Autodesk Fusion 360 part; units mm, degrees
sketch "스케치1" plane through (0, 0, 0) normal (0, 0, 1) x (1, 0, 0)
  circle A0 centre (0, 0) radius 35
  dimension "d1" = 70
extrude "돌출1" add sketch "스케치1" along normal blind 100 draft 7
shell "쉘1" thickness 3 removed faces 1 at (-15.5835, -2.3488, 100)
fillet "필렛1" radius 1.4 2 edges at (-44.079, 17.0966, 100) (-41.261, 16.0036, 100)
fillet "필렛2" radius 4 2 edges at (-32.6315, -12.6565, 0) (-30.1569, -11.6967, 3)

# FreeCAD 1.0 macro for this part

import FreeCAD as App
import Part
import Sketcher

V = App.Vector


def edges_at(feature, points):
    """Names of the edges that pass closest to the given points."""
    edges = feature.Shape.Edges
    near = lambda p: min(range(len(edges)), key=lambda i: edges[i].distToShape(Part.Vertex(*p))[0])
    return sorted({f"Edge{near(p) + 1}" for p in points})


def faces_at(feature, points):
    """Names of the faces that lie closest to the given points."""
    faces = feature.Shape.Faces
    near = lambda p: min(range(len(faces)), key=lambda i: faces[i].distToShape(Part.Vertex(*p))[0])
    return sorted({f"Face{near(p) + 1}" for p in points})

doc = App.newDocument("Part")
body = doc.addObject("PartDesign::Body", "Body")

# Sketch on XY plane
sketch1 = body.newObject("Sketcher::SketchObject", "Sketch")
sketch1.AttachmentSupport = (doc.getObject("XY_Plane"), [""])
sketch1.MapMode = "FlatFace"
sketch1.addGeometry(Part.Circle(V(0, 0, 0), V(0, 0, 1), 35), False)
sketch1.addConstraint(Sketcher.Constraint("Coincident", 0, 3, -1, 1))
sketch1.addConstraint(Sketcher.Constraint("Diameter", 0, 70.0))
pad1 = body.newObject("PartDesign::Pad", "Pad")
pad1.Profile = sketch1
pad1.Length = 100
pad1.TaperAngle = 7
doc.recompute()

thickness = body.newObject("PartDesign::Thickness", "Thickness")
thickness.Base = (pad1, faces_at(pad1, [(-15.584, -2.349, 100)]))
thickness.Value = 3
thickness.Reversed = True
thickness.Join = "Intersection"
doc.recompute()

fillet = body.newObject("PartDesign::Fillet", "Fillet")
fillet.Base = (thickness, edges_at(thickness, [(-44.079, 17.097, 100), (-41.261, 16.004, 100)]))
fillet.Radius = 1.4
doc.recompute()

fillet2 = body.newObject("PartDesign::Fillet", "Fillet001")
fillet2.Base = (fillet, edges_at(fillet, [(-32.632, -12.656, 0), (-30.157, -11.697, 3)]))
fillet2.Radius = 4

doc.recompute()
